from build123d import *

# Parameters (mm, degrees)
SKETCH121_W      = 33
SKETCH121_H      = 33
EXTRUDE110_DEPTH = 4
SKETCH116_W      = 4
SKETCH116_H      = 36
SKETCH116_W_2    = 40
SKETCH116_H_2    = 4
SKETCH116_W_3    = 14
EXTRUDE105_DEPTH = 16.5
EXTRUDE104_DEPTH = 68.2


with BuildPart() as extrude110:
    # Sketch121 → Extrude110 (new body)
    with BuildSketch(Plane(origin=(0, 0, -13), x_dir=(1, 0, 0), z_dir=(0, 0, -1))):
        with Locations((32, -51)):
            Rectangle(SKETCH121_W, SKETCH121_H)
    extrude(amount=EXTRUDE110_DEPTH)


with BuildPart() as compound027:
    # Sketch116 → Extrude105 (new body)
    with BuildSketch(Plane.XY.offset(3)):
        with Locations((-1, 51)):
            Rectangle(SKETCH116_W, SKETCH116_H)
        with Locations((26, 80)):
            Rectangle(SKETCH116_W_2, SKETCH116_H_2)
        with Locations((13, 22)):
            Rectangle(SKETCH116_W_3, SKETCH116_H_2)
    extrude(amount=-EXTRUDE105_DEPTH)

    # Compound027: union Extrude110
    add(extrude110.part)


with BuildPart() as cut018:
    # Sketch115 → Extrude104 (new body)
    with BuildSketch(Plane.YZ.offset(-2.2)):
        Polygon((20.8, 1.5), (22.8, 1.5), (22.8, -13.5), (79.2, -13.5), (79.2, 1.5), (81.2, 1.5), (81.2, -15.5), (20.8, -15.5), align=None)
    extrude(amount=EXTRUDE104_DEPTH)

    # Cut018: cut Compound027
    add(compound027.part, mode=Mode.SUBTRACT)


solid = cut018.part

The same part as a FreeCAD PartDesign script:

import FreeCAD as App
import Part
import Sketcher
from FreeCAD import Vector
Q = App.Units.Quantity


def add_polygon(sketch, points):
    """Adds a closed chain of lines whose ends are joined by coincident constraints."""
    first, n = sketch.GeometryCount, len(points)
    for a, b in zip(points, points[1:] + points[:1]):
        sketch.addGeometry(Part.LineSegment(App.Vector(*a, 0), App.Vector(*b, 0)), False)
    for i in range(n):
        sketch.addConstraint(Sketcher.Constraint("Coincident", first + i, 2, first + (i + 1) % n, 1))

doc = App.newDocument("Part")
body = doc.addObject("PartDesign::Body", "Body")

sketch1 = body.newObject("Sketcher::SketchObject", "Sketch")
sketch1.AttachmentSupport = (doc.getObject("XY_Plane"), [""])
sketch1.MapMode = "FlatFace"
sketch1.AttachmentOffset = App.Placement(Vector(0, 0, -13), App.Rotation())
add_polygon(sketch1, [(16, 34), (16, 68), (48, 68), (48, 34)])
sketch1.addConstraint([
    Sketcher.Constraint("Vertical", 0),
    Sketcher.Constraint("Horizontal", 1),
    Sketcher.Constraint("Vertical", 2),
    Sketcher.Constraint("Horizontal", 3),
    Sketcher.Constraint("Equal", 3, 0),
    Sketcher.Constraint("DistanceX", 1, 1, 1, 2, Q("33 mm")),
    Sketcher.Constraint("DistanceX", -1, 1, 0, 2, Q("15.5 mm")),
    Sketcher.Constraint("DistanceY", -1, 1, 0, 2, Q("67.5 mm")),
])
pad1 = body.newObject("PartDesign::Pad", "Pad")
pad1.Profile = sketch1
pad1.Length = 4
pad1.Reversed = True
body2 = doc.addObject("PartDesign::Body", "Body001")
body2.AllowCompound = True

sketch2 = body2.newObject("Sketcher::SketchObject", "Sketch001")
sketch2.AttachmentSupport = (doc.getObject("XY_Plane001"), [""])
sketch2.MapMode = "FlatFace"
sketch2.AttachmentOffset = App.Placement(Vector(0, 0, 3), App.Rotation())
add_polygon(sketch2, [(-3, 69), (-3, 33), (1, 33), (1, 69)])
add_polygon(sketch2, [(6, 82), (6, 78), (46, 78), (46, 82)])
add_polygon(sketch2, [(6, 24), (6, 20), (20, 20), (20, 24)])
sketch2.addConstraint([
    Sketcher.Constraint("Vertical", 0),
    Sketcher.Constraint("Horizontal", 1),
    Sketcher.Constraint("Vertical", 2),
    Sketcher.Constraint("Horizontal", 3),
    Sketcher.Constraint("Vertical", 4),
    Sketcher.Constraint("Horizontal", 5),
    Sketcher.Constraint("Vertical", 6),
    Sketcher.Constraint("Horizontal", 7),
    Sketcher.Constraint("Vertical", 8),
    Sketcher.Constraint("Horizontal", 9),
    Sketcher.Constraint("Vertical", 10),
    Sketcher.Constraint("Horizontal", 11),
    Sketcher.Constraint("Vertical", 7, 2, 8, 2),
    Sketcher.Constraint("Equal", 3, 4),
    Sketcher.Constraint("Equal", 6, 8),
    Sketcher.Constraint("DistanceX", 1, 1, 1, 2, Q("4 mm")),
    Sketcher.Constraint("DistanceX", 5, 1, 5, 2, Q("40 mm")),
    Sketcher.Constraint("DistanceX", 9, 1, 9, 2, Q("14 mm")),
    Sketcher.Constraint("DistanceY", 0, 2, 0, 1, Q("36 mm")),
    Sketcher.Constraint("DistanceX", 0, 2, -1, 1, Q("3 mm")),
    Sketcher.Constraint("DistanceY", -1, 1, 0, 2, Q("33 mm")),
    Sketcher.Constraint("DistanceX", -1, 1, 4, 2, Q("6 mm")),
    Sketcher.Constraint("DistanceY", -1, 1, 4, 2, Q("78 mm")),
    Sketcher.Constraint("DistanceY", -1, 1, 8, 2, Q("20 mm")),
])
pad2 = body2.newObject("PartDesign::Pad", "Pad001")
pad2.Profile = sketch2
pad2.Length = 16.5
pad2.Reversed = True
doc.recompute()

boolean = body2.newObject("PartDesign::Boolean", "Boolean")
boolean.Type = "Fuse"
boolean.addObjects([body])
body3 = doc.addObject("PartDesign::Body", "Body002")

sketch3 = body3.newObject("Sketcher::SketchObject", "Sketch002")
sketch3.AttachmentSupport = (doc.getObject("YZ_Plane002"), [""])
sketch3.MapMode = "FlatFace"
sketch3.AttachmentOffset = App.Placement(Vector(0, 0, -2.2), App.Rotation())
add_polygon(sketch3, [(22.8, 1.5), (20.8, 1.5), (20.8, -15.5), (81.2, -15.5), (81.2, 1.5), (79.2, 1.5), (79.2, -13.5), (22.8, -13.5)])
sketch3.addConstraint([
    Sketcher.Constraint("Horizontal", 0),
    Sketcher.Constraint("Vertical", 1),
    Sketcher.Constraint("Horizontal", 2),
    Sketcher.Constraint("Vertical", 3),
    Sketcher.Constraint("Horizontal", 4),
    Sketcher.Constraint("Vertical", 5),
    Sketcher.Constraint("Horizontal", 6),
    Sketcher.Constraint("Vertical", 7),
    Sketcher.Constraint("Horizontal", 0, 2, 3, 2),
    Sketcher.Constraint("Equal", 0, 4),
    Sketcher.Constraint("DistanceX", 0, 2, 0, 1, Q("2 mm")),
    Sketcher.Constraint("DistanceY", 1, 2, 1, 1, Q("17 mm")),
    Sketcher.Constraint("DistanceY", 5, 2, 5, 1, Q("15 mm")),
    Sketcher.Constraint("DistanceX", 2, 1, 2, 2, Q("60.4 mm")),
    Sketcher.Constraint("DistanceX", -1, 1, 0, 2, Q("20.8 mm")),
    Sketcher.Constraint("DistanceY", -1, 1, 0, 2, Q("1.5 mm")),
])
pad3 = body3.newObject("PartDesign::Pad", "Pad002")
pad3.Profile = sketch3
pad3.Length = 68.2
doc.recompute()

boolean2 = body3.newObject("PartDesign::Boolean", "Boolean001")
boolean2.Type = "Cut"
boolean2.addObjects([body2])

doc.recompute()
